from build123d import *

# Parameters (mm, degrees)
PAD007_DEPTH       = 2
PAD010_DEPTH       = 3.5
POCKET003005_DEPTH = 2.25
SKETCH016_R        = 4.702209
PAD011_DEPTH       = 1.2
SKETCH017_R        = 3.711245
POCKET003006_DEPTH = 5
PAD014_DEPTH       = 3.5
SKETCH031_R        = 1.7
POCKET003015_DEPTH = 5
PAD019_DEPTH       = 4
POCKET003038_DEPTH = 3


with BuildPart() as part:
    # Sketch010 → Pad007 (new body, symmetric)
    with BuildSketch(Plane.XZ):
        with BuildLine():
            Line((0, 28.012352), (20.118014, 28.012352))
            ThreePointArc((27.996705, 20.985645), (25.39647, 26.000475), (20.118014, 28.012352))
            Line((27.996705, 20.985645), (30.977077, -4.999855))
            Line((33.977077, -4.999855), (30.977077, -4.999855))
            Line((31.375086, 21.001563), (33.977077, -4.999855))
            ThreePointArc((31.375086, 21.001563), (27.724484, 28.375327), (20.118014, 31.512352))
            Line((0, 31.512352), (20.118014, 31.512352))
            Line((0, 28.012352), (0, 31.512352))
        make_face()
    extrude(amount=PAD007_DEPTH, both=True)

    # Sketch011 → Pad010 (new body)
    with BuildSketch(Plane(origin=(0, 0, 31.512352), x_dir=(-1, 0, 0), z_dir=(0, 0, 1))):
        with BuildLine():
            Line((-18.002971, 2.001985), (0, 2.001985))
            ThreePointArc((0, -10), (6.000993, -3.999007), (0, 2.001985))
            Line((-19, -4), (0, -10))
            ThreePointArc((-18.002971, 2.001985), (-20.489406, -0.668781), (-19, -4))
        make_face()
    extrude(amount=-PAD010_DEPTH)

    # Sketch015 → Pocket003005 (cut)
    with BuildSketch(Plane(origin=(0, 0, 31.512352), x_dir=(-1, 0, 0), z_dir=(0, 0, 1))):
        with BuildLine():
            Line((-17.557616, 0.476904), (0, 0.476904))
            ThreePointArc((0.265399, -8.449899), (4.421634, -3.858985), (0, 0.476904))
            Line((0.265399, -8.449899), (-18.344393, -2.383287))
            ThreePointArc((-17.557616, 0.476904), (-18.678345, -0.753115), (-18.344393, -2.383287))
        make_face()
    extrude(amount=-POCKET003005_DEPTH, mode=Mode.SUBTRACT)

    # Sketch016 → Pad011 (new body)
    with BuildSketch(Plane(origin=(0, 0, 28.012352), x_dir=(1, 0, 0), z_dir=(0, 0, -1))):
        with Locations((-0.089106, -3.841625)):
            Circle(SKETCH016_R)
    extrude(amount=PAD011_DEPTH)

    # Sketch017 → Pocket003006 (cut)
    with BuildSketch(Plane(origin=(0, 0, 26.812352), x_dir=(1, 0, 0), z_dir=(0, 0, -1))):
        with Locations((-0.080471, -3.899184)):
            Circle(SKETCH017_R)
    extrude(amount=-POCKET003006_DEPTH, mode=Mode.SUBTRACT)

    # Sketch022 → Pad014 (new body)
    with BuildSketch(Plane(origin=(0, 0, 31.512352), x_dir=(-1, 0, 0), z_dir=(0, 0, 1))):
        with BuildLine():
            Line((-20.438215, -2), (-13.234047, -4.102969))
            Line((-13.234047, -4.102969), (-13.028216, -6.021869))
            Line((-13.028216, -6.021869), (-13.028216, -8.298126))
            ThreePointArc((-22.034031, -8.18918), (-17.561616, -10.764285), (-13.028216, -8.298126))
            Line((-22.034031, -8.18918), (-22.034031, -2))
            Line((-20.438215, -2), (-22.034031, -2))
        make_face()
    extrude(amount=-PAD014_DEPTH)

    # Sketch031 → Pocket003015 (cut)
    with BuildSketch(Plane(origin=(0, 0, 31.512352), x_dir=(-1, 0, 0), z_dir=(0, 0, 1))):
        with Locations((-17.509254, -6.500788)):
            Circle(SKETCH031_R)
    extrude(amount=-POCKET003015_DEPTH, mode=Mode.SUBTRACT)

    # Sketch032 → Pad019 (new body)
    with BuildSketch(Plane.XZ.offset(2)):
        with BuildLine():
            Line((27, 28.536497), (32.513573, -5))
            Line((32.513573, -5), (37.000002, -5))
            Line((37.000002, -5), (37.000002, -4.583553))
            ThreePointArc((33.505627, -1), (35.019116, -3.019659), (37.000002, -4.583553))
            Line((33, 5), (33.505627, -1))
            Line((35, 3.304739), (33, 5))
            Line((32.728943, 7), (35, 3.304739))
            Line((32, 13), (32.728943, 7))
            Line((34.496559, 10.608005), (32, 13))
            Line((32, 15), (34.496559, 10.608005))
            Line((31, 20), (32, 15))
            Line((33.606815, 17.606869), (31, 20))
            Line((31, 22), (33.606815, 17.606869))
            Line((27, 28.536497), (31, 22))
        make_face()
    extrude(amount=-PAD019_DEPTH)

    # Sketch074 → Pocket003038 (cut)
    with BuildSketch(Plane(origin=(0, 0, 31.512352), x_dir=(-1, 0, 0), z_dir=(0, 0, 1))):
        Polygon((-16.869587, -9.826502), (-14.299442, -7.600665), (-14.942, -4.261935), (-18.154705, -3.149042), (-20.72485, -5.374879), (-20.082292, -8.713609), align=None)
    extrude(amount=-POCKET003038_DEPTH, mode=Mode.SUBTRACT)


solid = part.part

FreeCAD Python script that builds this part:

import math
import FreeCAD as App
import Part
import Sketcher


def add_polygon(sketch, points):
    """Adds a closed chain of lines whose ends are joined by coincident constraints."""
    first, n = sketch.GeometryCount, len(points)
    for a, b in zip(points, points[1:] + points[:1]):
        sketch.addGeometry(Part.LineSegment(App.Vector(*a, 0), App.Vector(*b, 0)), False)
    for i in range(n):
        sketch.addConstraint(Sketcher.Constraint("Coincident", first + i, 2, first + (i + 1) % n, 1))

doc = App.newDocument("Part")
params = doc.addObject("Spreadsheet::Sheet", "Params")
for row, (alias, value) in enumerate([
    ("sketch1_width", "3 mm"),
    ("sketch1_height", "3.5 mm"),
    ("pad1_length", "4 mm"),
    ("pad2_length", "3.5 mm"),
    ("pocket1_length", "2.25 mm"),
    ("pad3_length", "1.2 mm"),
    ("pocket2_length", "5 mm"),
    ("pad4_length", "3.5 mm"),
    ("sketch7_diameter", "3.4 mm"),
    ("pocket3_length", "5 mm"),
    ("pad5_length", "4 mm"),
    ("sketch9_length", "3.399999 mm"),
    ("pocket4_length", "3 mm"),
], start=1):
    params.set(f"A{row}", alias)
    params.set(f"B{row}", "=" + value)
    params.setAlias(f"B{row}", alias)

body = doc.addObject("PartDesign::Body", "Body")

sketch1 = body.newObject("Sketcher::SketchObject", "Sketch")
sketch1.AttachmentSupport = (doc.getObject("XZ_Plane"), [""])
sketch1.MapMode = "FlatFace"
sketch1.addGeometry([
    Part.LineSegment(App.Vector(0, 28, 0), App.Vector(20.1, 28, 0)),
    Part.ArcOfCircle(Part.Circle(App.Vector(20.1, 20.1, 0), App.Vector(0, 0, 1), 7.9), math.radians(7), math.radians(90)),
    Part.LineSegment(App.Vector(28, 21, 0), App.Vector(31, -5, 0)),
    Part.LineSegment(App.Vector(31, -5, 0), App.Vector(34, -5, 0)),
    Part.LineSegment(App.Vector(34, -5, 0), App.Vector(31.4, 21, 0)),
    Part.ArcOfCircle(Part.Circle(App.Vector(19.8, 19.8, 0), App.Vector(0, 0, 1), 11.7), math.radians(6), math.radians(88)),
    Part.LineSegment(App.Vector(20.1, 31.5, 0), App.Vector(0, 31.5, 0)),
    Part.LineSegment(App.Vector(0, 31.5, 0), App.Vector(0, 28, 0)),
], False)
sketch1.addConstraint([
    Sketcher.Constraint("Tangent", 0, 2, 1, 2),
    Sketcher.Constraint("Tangent", 1, 1, 2, 1),
    Sketcher.Constraint("Coincident", 2, 2, 3, 1),
    Sketcher.Constraint("Coincident", 3, 2, 4, 1),
    Sketcher.Constraint("Tangent", 4, 2, 5, 1),
    Sketcher.Constraint("Coincident", 5, 2, 6, 1),
    Sketcher.Constraint("Coincident", 6, 2, 7, 1),
    Sketcher.Constraint("Coincident", 7, 2, 0, 1),
    Sketcher.Constraint("Horizontal", 0),
    Sketcher.Constraint("Horizontal", 3),
    Sketcher.Constraint("Horizontal", 6),
    Sketcher.Constraint("Vertical", 7),
    Sketcher.Constraint("PointOnObject", 6, 2, -2),
    Sketcher.Constraint("Vertical", 0, 2, 5, 2),
    Sketcher.Constraint("DistanceX", 3, 1, 3, 2, 3.0),
    Sketcher.Constraint("DistanceY", 7, 2, 7, 1, 3.5),
    Sketcher.Constraint("Radius", 5, 11.679439),
    Sketcher.Constraint("Radius", 1, 7.930342),
    Sketcher.Constraint("DistanceY", 2, 2, 1, 1, 25.9855),
    Sketcher.Constraint("DistanceX", 0, 1, 0, 2, 20.118014),
    Sketcher.Constraint("DistanceY", -1, 1, 1, 3, 20.08201),
    Sketcher.Constraint("DistanceX", -1, 1, 5, 3, 19.753692),
    Sketcher.Constraint("DistanceX", 1, 3, 1, 1, 7.878691),
])
sketch1.setExpression("Constraints[14]", "Params.sketch1_width")
sketch1.setExpression("Constraints[15]", "Params.sketch1_height")
pad1 = body.newObject("PartDesign::Pad", "Pad")
pad1.Profile = sketch1
pad1.setExpression("Length", "Params.pad1_length")
pad1.Midplane = True

sketch2 = body.newObject("Sketcher::SketchObject", "Sketch001")
sketch2.AttachmentSupport = (doc.getObject("XY_Plane"), [""])
sketch2.MapMode = "FlatFace"
sketch2.AttachmentOffset = App.Placement(App.Vector(0, 0, 31.512352), App.Rotation())
sketch2.addGeometry([
    Part.LineSegment(App.Vector(0, -2, 0), App.Vector(18, -2, 0)),
    Part.ArcOfCircle(Part.Circle(App.Vector(17.2, 1.2, 0), App.Vector(0, 0, 1), 3.3), math.radians(-76), math.radians(58)),
    Part.LineSegment(App.Vector(19, 4, 0), App.Vector(0, 10, 0)),
    Part.ArcOfCircle(Part.Circle(App.Vector(0, 4, 0), App.Vector(0, 0, 1), 6), math.radians(90), math.radians(270)),
], False)
sketch2.addConstraint([
    Sketcher.Constraint("Coincident", 0, 2, 1, 1),
    Sketcher.Constraint("Coincident", 1, 2, 2, 1),
    Sketcher.Constraint("Coincident", 2, 2, 3, 1),
    Sketcher.Constraint("Tangent", 3, 2, 0, 1),
    Sketcher.Constraint("Horizontal", 0),
    Sketcher.Constraint("PointOnObject", 3, 3, -2),
    Sketcher.Constraint("PointOnObject", 2, 2, -2),
    Sketcher.Constraint("DistanceX", -1, 1, 1, 2, 19.0),
    Sketcher.Constraint("DistanceY", -1, 1, 1, 2, 4.0),
    Sketcher.Constraint("DistanceY", -1, 1, 2, 2, 10.0),
    Sketcher.Constraint("Radius", 1, 3.303792),
    Sketcher.Constraint("Radius", 3, 6.000992),
    Sketcher.Constraint("DistanceX", 0, 1, 0, 2, 18.002971),
])
pad2 = body.newObject("PartDesign::Pad", "Pad001")
pad2.Profile = sketch2
pad2.setExpression("Length", "Params.pad2_length")
pad2.Reversed = True

sketch3 = body.newObject("Sketcher::SketchObject", "Sketch002")
sketch3.AttachmentSupport = (doc.getObject("XY_Plane"), [""])
sketch3.MapMode = "FlatFace"
sketch3.AttachmentOffset = App.Placement(App.Vector(0, 0, 31.512352), App.Rotation())
sketch3.addGeometry([
    Part.LineSegment(App.Vector(0, -0.5, 0), App.Vector(17.6, -0.5, 0)),
    Part.ArcOfCircle(Part.Circle(App.Vector(16.9, 1.2, 0), App.Vector(0, 0, 1), 1.8), math.radians(-69), math.radians(39)),
    Part.LineSegment(App.Vector(18.3, 2.4, 0), App.Vector(-0.3, 8.4, 0)),
    Part.ArcOfCircle(Part.Circle(App.Vector(0, 4, 0), App.Vector(0, 0, 1), 4.5), math.radians(94), math.radians(269)),
], False)
sketch3.addConstraint([
    Sketcher.Constraint("Coincident", 0, 2, 1, 1),
    Sketcher.Constraint("Coincident", 1, 2, 2, 1),
    Sketcher.Constraint("Coincident", 2, 2, 3, 1),
    Sketcher.Constraint("Coincident", 3, 2, 0, 1),
    Sketcher.Constraint("Horizontal", 0),
    Sketcher.Constraint("PointOnObject", 3, 2, -2),
    Sketcher.Constraint("Radius", 1, 1.835326),
    Sketcher.Constraint("Radius", 3, 4.468924),
    Sketcher.Constraint("DistanceX", 2, 2, -1, 1, 0.265399),
    Sketcher.Constraint("DistanceY", -1, 1, 2, 2, 8.449899),
    Sketcher.Constraint("DistanceX", 3, 3, 0, 2, 17.5123),
    Sketcher.Constraint("Distance", 2, 19.573659),
    Sketcher.Constraint("DistanceX", 0, 1, 0, 2, 17.557616),
    Sketcher.Constraint("DistanceX", -1, 1, 1, 3, 16.90875),
])
pocket1 = body.newObject("PartDesign::Pocket", "Pocket")
pocket1.Profile = sketch3
pocket1.setExpression("Length", "Params.pocket1_length")

sketch4 = body.newObject("Sketcher::SketchObject", "Sketch003")
sketch4.AttachmentSupport = (doc.getObject("XY_Plane"), [""])
sketch4.MapMode = "FlatFace"
sketch4.AttachmentOffset = App.Placement(App.Vector(0, 0, 28.012352), App.Rotation())
sketch4.addGeometry(Part.Circle(App.Vector(-0.1, 3.8, 0), App.Vector(0, 0, 1), 4.7), False)
sketch4.addConstraint([
    Sketcher.Constraint("Diameter", 0, 9.404418),
    Sketcher.Constraint("DistanceX", 0, 3, -1, 1, 0.089106),
    Sketcher.Constraint("DistanceY", -1, 1, 0, 3, 3.841625),
])
pad3 = body.newObject("PartDesign::Pad", "Pad002")
pad3.Profile = sketch4
pad3.setExpression("Length", "Params.pad3_length")
pad3.Reversed = True

sketch5 = body.newObject("Sketcher::SketchObject", "Sketch004")
sketch5.AttachmentSupport = (doc.getObject("XY_Plane"), [""])
sketch5.MapMode = "FlatFace"
sketch5.AttachmentOffset = App.Placement(App.Vector(0, 0, 26.812352), App.Rotation())
sketch5.addGeometry(Part.Circle(App.Vector(-0.1, 3.9, 0), App.Vector(0, 0, 1), 3.7), False)
sketch5.addConstraint([
    Sketcher.Constraint("Diameter", 0, 7.42249),
    Sketcher.Constraint("DistanceX", 0, 3, -1, 1, 0.080471),
    Sketcher.Constraint("DistanceY", -1, 1, 0, 3, 3.899184),
])
pocket2 = body.newObject("PartDesign::Pocket", "Pocket001")
pocket2.Profile = sketch5
pocket2.setExpression("Length", "Params.pocket2_length")
pocket2.Reversed = True

sketch6 = body.newObject("Sketcher::SketchObject", "Sketch005")
sketch6.AttachmentSupport = (doc.getObject("XY_Plane"), [""])
sketch6.MapMode = "FlatFace"
sketch6.AttachmentOffset = App.Placement(App.Vector(0, 0, 31.512352), App.Rotation())
sketch6.addGeometry([
    Part.LineSegment(App.Vector(13.2, 4.1, 0), App.Vector(20.4, 2, 0)),
    Part.LineSegment(App.Vector(20.4, 2, 0), App.Vector(22, 2, 0)),
    Part.LineSegment(App.Vector(22, 2, 0), App.Vector(22, 8.2, 0)),
    Part.ArcOfCircle(Part.Circle(App.Vector(17.5, 5.5, 0), App.Vector(0, 0, 1), 5.3), math.radians(31), math.radians(148)),
    Part.LineSegment(App.Vector(13, 8.3, 0), App.Vector(13, 6, 0)),
    Part.LineSegment(App.Vector(13, 6, 0), App.Vector(13.2, 4.1, 0)),
], False)
sketch6.addConstraint([
    Sketcher.Constraint("Coincident", 0, 2, 1, 1),
    Sketcher.Constraint("Coincident", 1, 2, 2, 1),
    Sketcher.Constraint("Coincident", 2, 2, 3, 1),
    Sketcher.Constraint("Coincident", 3, 2, 4, 1),
    Sketcher.Constraint("Coincident", 4, 2, 5, 1),
    Sketcher.Constraint("Coincident", 5, 2, 0, 1),
    Sketcher.Constraint("Horizontal", 1),
    Sketcher.Constraint("Vertical", 2),
    Sketcher.Constraint("Vertical", 4),
    Sketcher.Constraint("DistanceY", -1, 1, 0, 2, 2.0),
    Sketcher.Constraint("DistanceX", 3, 2, 0, 2, 7.409999),
    Sketcher.Constraint("Radius", 3, 5.282745),
    Sketcher.Constraint("DistanceY", 2, 1, 2, 2, 6.18918),
    Sketcher.Constraint("DistanceX", 3, 3, 0, 2, 2.940501),
    Sketcher.Constraint("DistanceY", 5, 2, 4, 2, 1.9189),
    Sketcher.Constraint("DistanceX", 1, 1, 1, 2, 1.595816),
    Sketcher.Constraint("DistanceY", 4, 2, 4, 1, 2.276257),
    Sketcher.Constraint("DistanceX", -1, 1, 1, 2, 22.034031),
    Sketcher.Constraint("DistanceX", 4, 2, 5, 2, 0.205831),
])
pad4 = body.newObject("PartDesign::Pad", "Pad003")
pad4.Profile = sketch6
pad4.setExpression("Length", "Params.pad4_length")
pad4.Reversed = True

sketch7 = body.newObject("Sketcher::SketchObject", "Sketch006")
sketch7.AttachmentSupport = (doc.getObject("XY_Plane"), [""])
sketch7.MapMode = "FlatFace"
sketch7.AttachmentOffset = App.Placement(App.Vector(0, 0, 31.512352), App.Rotation())
sketch7.addGeometry(Part.Circle(App.Vector(17.5, 6.5, 0), App.Vector(0, 0, 1), 1.7), False)
sketch7.addConstraint([
    Sketcher.Constraint("Diameter", 0, 3.4),
    Sketcher.Constraint("DistanceX", -1, 1, 0, 3, 17.509254),
    Sketcher.Constraint("DistanceY", -1, 1, 0, 3, 6.500788),
])
sketch7.setExpression("Constraints[0]", "Params.sketch7_diameter")
pocket3 = body.newObject("PartDesign::Pocket", "Pocket002")
pocket3.Profile = sketch7
pocket3.setExpression("Length", "Params.pocket3_length")

sketch8 = body.newObject("Sketcher::SketchObject", "Sketch007")
sketch8.AttachmentSupport = (doc.getObject("XZ_Plane"), [""])
sketch8.MapMode = "FlatFace"
sketch8.AttachmentOffset = App.Placement(App.Vector(0, 0, 2), App.Rotation())
sketch8.addGeometry([
    Part.LineSegment(App.Vector(27, 28.54, 0), App.Vector(32.51, -5, 0)),
    Part.LineSegment(App.Vector(32.51, -5, 0), App.Vector(37, -5, 0)),
    Part.LineSegment(App.Vector(37, -5, 0), App.Vector(37, -4.58, 0)),
    Part.ArcOfCircle(Part.Circle(App.Vector(42, 3.79, 0), App.Vector(0, 0, 1), 9.76), math.radians(-151), math.radians(-121)),
    Part.LineSegment(App.Vector(33.51, -1, 0), App.Vector(33, 5, 0)),
    Part.LineSegment(App.Vector(33, 5, 0), App.Vector(35, 3.3, 0)),
    Part.LineSegment(App.Vector(35, 3.3, 0), App.Vector(32.73, 7, 0)),
    Part.LineSegment(App.Vector(32.73, 7, 0), App.Vector(32, 13, 0)),
    Part.LineSegment(App.Vector(32, 13, 0), App.Vector(34.5, 10.61, 0)),
    Part.LineSegment(App.Vector(34.5, 10.61, 0), App.Vector(32, 15, 0)),
    Part.LineSegment(App.Vector(32, 15, 0), App.Vector(31, 20, 0)),
    Part.LineSegment(App.Vector(31, 20, 0), App.Vector(33.61, 17.61, 0)),
    Part.LineSegment(App.Vector(33.61, 17.61, 0), App.Vector(31, 22, 0)),
    Part.LineSegment(App.Vector(31, 22, 0), App.Vector(27, 28.54, 0)),
], False)
sketch8.addConstraint([
    Sketcher.Constraint("Coincident", 0, 2, 1, 1),
    Sketcher.Constraint("Coincident", 1, 2, 2, 1),
    Sketcher.Constraint("Coincident", 2, 2, 3, 2),
    Sketcher.Constraint("Coincident", 3, 1, 4, 1),
    Sketcher.Constraint("Coincident", 4, 2, 5, 1),
    Sketcher.Constraint("Coincident", 5, 2, 6, 1),
    Sketcher.Constraint("Coincident", 6, 2, 7, 1),
    Sketcher.Constraint("Coincident", 7, 2, 8, 1),
    Sketcher.Constraint("Coincident", 8, 2, 9, 1),
    Sketcher.Constraint("Coincident", 9, 2, 10, 1),
    Sketcher.Constraint("Coincident", 10, 2, 11, 1),
    Sketcher.Constraint("Coincident", 11, 2, 12, 1),
    Sketcher.Constraint("Coincident", 12, 2, 13, 1),
    Sketcher.Constraint("Coincident", 13, 2, 0, 1),
    Sketcher.Constraint("Horizontal", 1),
    Sketcher.Constraint("Vertical", 2),
    Sketcher.Constraint("Vertical", 7, 2, 9, 2),
    Sketcher.Constraint("Vertical", 10, 2, 12, 2),
    Sketcher.Constraint("DistanceY", 0, 2, -1, 1, 5.0),
    Sketcher.Constraint("DistanceY", 3, 1, -1, 1, 1.0),
    Sketcher.Constraint("DistanceX", -1, 1, 4, 2, 33.0),
    Sketcher.Constraint("DistanceY", -1, 1, 4, 2, 5.0),
    Sketcher.Constraint("DistanceX", -1, 1, 5, 2, 35.0),
    Sketcher.Constraint("DistanceY", -1, 1, 6, 2, 7.0),
    Sketcher.Constraint("DistanceX", -1, 1, 7, 2, 32.0),
    Sketcher.Constraint("DistanceY", -1, 1, 7, 2, 13.0),
    Sketcher.Constraint("DistanceY", -1, 1, 9, 2, 15.0),
    Sketcher.Constraint("DistanceX", -1, 1, 10, 2, 31.0),
    Sketcher.Constraint("DistanceY", -1, 1, 10, 2, 20.0),
    Sketcher.Constraint("DistanceY", -1, 1, 12, 2, 22.0),
    Sketcher.Constraint("DistanceX", -1, 1, 13, 2, 27.0),
    Sketcher.Constraint("Radius", 3, 9.757077),
    Sketcher.Constraint("DistanceX", 1, 1, 1, 2, 4.486429),
    Sketcher.Constraint("Distance", 8, 3.45752),
    Sketcher.Constraint("DistanceY", 2, 1, 2, 2, 0.416447),
    Sketcher.Constraint("DistanceY", -1, 1, 5, 2, 3.304739),
    Sketcher.Constraint("DistanceX", -1, 1, 8, 2, 34.496559),
    Sketcher.Constraint("DistanceY", -1, 1, 11, 2, 17.606869),
    Sketcher.Constraint("DistanceX", 0, 2, 3, 3, 9.491211),
    Sketcher.Constraint("DistanceX", 6, 2, 3, 3, 9.275841),
    Sketcher.Constraint("DistanceX", 6, 2, 11, 2, 0.877872),
    Sketcher.Constraint("DistanceY", 11, 2, 13, 2, 10.929628),
    Sketcher.Constraint("Distance", 0, 33.986705),
])
pad5 = body.newObject("PartDesign::Pad", "Pad004")
pad5.Profile = sketch8
pad5.setExpression("Length", "Params.pad5_length")
pad5.Reversed = True

sketch9 = body.newObject("Sketcher::SketchObject", "Sketch008")
sketch9.AttachmentSupport = (doc.getObject("XY_Plane"), [""])
sketch9.MapMode = "FlatFace"
sketch9.AttachmentOffset = App.Placement(App.Vector(0, 0, 31.512352), App.Rotation())
add_polygon(sketch9, [(16.9, 9.8), (14.3, 7.6), (14.9, 4.3), (18.2, 3.1), (20.7, 5.4), (20.1, 8.7)])
sketch9.addConstraint([
    Sketcher.Constraint("Parallel", 0, 3),
    Sketcher.Constraint("Parallel", 1, 4),
    Sketcher.Constraint("Parallel", 2, 5),
    Sketcher.Constraint("Equal", 0, 1),
    Sketcher.Constraint("Equal", 1, 2),
    Sketcher.Constraint("Equal", 2, 3),
    Sketcher.Constraint("Distance", 0, 3.399999),
    Sketcher.Constraint("DistanceX", -1, 1, 1, 2, 14.942),
    Sketcher.Constraint("DistanceX", -1, 1, 3, 2, 20.72485),
    Sketcher.Constraint("DistanceY", -1, 1, 3, 2, 5.374879),
    Sketcher.Constraint("DistanceX", -1, 1, 4, 2, 20.082292),
    Sketcher.Constraint("DistanceX", 5, 2, 2, 2, 1.285118),
])
sketch9.setExpression("Constraints[12]", "Params.sketch9_length")
pocket4 = body.newObject("PartDesign::Pocket", "Pocket003")
pocket4.Profile = sketch9
pocket4.setExpression("Length", "Params.pocket4_length")

doc.recompute()
